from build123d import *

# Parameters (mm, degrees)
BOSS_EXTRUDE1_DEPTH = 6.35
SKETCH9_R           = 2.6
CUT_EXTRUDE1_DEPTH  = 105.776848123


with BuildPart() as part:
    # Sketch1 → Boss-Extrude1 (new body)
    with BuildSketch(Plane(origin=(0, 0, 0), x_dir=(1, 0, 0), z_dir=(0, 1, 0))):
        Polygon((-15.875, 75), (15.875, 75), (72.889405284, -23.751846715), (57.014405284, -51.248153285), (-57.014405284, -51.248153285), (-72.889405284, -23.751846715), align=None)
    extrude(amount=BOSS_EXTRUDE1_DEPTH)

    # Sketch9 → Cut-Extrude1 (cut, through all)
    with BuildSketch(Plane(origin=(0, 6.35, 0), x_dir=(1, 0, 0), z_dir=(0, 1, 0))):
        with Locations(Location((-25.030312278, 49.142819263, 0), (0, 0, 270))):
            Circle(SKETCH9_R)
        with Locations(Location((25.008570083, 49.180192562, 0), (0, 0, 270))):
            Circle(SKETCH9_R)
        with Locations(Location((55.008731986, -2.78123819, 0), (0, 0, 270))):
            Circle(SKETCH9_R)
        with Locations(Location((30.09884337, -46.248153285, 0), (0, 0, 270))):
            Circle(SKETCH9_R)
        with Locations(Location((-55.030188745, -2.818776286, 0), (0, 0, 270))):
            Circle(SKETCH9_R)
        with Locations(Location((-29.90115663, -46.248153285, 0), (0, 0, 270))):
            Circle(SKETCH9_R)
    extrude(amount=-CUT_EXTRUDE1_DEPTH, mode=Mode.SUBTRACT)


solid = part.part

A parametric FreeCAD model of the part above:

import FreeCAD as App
import Part
import Sketcher

V = App.Vector
Q = App.Units.Quantity

doc = App.newDocument("Part")
body = doc.addObject("PartDesign::Body", "Body")

sketch1 = body.newObject("Sketcher::SketchObject", "Sketch")
sketch1.AttachmentSupport = (doc.getObject("XZ_Plane"), [""])
sketch1.MapMode = "FlatFace"
sketch1.addGeometry([
    Part.LineSegment(V(16, -75, 0), V(-16, -75, 0)),
    Part.LineSegment(V(-16, -75, 0), V(-73, 24, 0)),
    Part.LineSegment(V(-73, 24, 0), V(-57, 51, 0)),
    Part.LineSegment(V(-57, 51, 0), V(57, 51, 0)),
    Part.LineSegment(V(57, 51, 0), V(73, 24, 0)),
    Part.LineSegment(V(73, 24, 0), V(16, -75, 0)),
], False)
sketch1.addConstraint([
    Sketcher.Constraint("Coincident", 0, 2, 1, 1),
    Sketcher.Constraint("Coincident", 1, 2, 2, 1),
    Sketcher.Constraint("Coincident", 2, 2, 3, 1),
    Sketcher.Constraint("Coincident", 3, 2, 4, 1),
    Sketcher.Constraint("Coincident", 4, 2, 5, 1),
    Sketcher.Constraint("Coincident", 5, 2, 0, 1),
    Sketcher.Constraint("Horizontal", 0),
    Sketcher.Constraint("Horizontal", 3),
    Sketcher.Constraint("Symmetric", 1, 2, 4, 2, -2),
    Sketcher.Constraint("Parallel", 1, 4),
    Sketcher.Constraint("Parallel", 2, 5),
    Sketcher.Constraint("Equal", 2, 4),
    Sketcher.Constraint("Angle", 1, Q("120 deg")),
    Sketcher.Constraint("DistanceX", 0, 2, 0, 1, Q("1.25 in")),
    Sketcher.Constraint("Distance", 2, Q("1.25 in")),
    Sketcher.Constraint("DistanceX", 3, 1, 3, 2, 114.028811),
    Sketcher.Constraint("DistanceY", 0, 2, -1, 1, 75.0),
])
pad1 = body.newObject("PartDesign::Pad", "Pad")
pad1.Profile = sketch1
pad1.Length = Q("0.25 in")
pad1.Reversed = True

sketch2 = body.newObject("Sketcher::SketchObject", "Sketch001")
sketch2.AttachmentSupport = (doc.getObject("XZ_Plane"), [""])
sketch2.MapMode = "FlatFace"
sketch2.AttachmentOffset = App.Placement(V(0, 0, -0.25 * 25.4), App.Rotation())
sketch2.addGeometry([
    Part.Circle(V(-25, -49.1, 0), V(0, 0, 1), 2.6),
    Part.Circle(V(25, -49.2, 0), V(0, 0, 1), 2.6),
    Part.Circle(V(55, 2.8, 0), V(0, 0, 1), 2.6),
    Part.Circle(V(30.1, 46.2, 0), V(0, 0, 1), 2.6),
    Part.Circle(V(-55, 2.8, 0), V(0, 0, 1), 2.6),
    Part.Circle(V(-29.9, 46.2, 0), V(0, 0, 1), 2.6),
], False)
sketch2.addConstraint([
    Sketcher.Constraint("Equal", 0, 1),
    Sketcher.Constraint("Equal", 1, 2),
    Sketcher.Constraint("Equal", 2, 3),
    Sketcher.Constraint("Equal", 3, 4),
    Sketcher.Constraint("Equal", 4, 5),
    Sketcher.Constraint("Horizontal", 3, 3, 5, 3),
    Sketcher.Constraint("Diameter", 0, 5.2),
    Sketcher.Constraint("DistanceX", 5, 3, 3, 3, 60.0),
    Sketcher.Constraint("DistanceY", 0, 3, -1, 1, 49.142819),
    Sketcher.Constraint("DistanceX", -1, 1, 1, 3, 25.00857),
    Sketcher.Constraint("DistanceX", -1, 1, 2, 3, 55.008732),
    Sketcher.Constraint("DistanceY", -1, 1, 2, 3, 2.781238),
    Sketcher.Constraint("DistanceX", 4, 3, -1, 1, 55.030189),
    Sketcher.Constraint("DistanceY", 1, 3, 2, 3, 51.961431),
    Sketcher.Constraint("DistanceX", 3, 3, 2, 3, 24.909889),
    Sketcher.Constraint("DistanceY", 1, 3, 4, 3, 51.998969),
    Sketcher.Constraint("DistanceX", 0, 3, -1, 1, 25.030312),
    Sketcher.Constraint("DistanceY", -1, 1, 3, 3, 46.248153),
])
pocket1 = body.newObject("PartDesign::Pocket", "Pocket")
pocket1.Profile = sketch2
pocket1.Type = "ThroughAll"
pocket1.Reversed = True

doc.recompute()
